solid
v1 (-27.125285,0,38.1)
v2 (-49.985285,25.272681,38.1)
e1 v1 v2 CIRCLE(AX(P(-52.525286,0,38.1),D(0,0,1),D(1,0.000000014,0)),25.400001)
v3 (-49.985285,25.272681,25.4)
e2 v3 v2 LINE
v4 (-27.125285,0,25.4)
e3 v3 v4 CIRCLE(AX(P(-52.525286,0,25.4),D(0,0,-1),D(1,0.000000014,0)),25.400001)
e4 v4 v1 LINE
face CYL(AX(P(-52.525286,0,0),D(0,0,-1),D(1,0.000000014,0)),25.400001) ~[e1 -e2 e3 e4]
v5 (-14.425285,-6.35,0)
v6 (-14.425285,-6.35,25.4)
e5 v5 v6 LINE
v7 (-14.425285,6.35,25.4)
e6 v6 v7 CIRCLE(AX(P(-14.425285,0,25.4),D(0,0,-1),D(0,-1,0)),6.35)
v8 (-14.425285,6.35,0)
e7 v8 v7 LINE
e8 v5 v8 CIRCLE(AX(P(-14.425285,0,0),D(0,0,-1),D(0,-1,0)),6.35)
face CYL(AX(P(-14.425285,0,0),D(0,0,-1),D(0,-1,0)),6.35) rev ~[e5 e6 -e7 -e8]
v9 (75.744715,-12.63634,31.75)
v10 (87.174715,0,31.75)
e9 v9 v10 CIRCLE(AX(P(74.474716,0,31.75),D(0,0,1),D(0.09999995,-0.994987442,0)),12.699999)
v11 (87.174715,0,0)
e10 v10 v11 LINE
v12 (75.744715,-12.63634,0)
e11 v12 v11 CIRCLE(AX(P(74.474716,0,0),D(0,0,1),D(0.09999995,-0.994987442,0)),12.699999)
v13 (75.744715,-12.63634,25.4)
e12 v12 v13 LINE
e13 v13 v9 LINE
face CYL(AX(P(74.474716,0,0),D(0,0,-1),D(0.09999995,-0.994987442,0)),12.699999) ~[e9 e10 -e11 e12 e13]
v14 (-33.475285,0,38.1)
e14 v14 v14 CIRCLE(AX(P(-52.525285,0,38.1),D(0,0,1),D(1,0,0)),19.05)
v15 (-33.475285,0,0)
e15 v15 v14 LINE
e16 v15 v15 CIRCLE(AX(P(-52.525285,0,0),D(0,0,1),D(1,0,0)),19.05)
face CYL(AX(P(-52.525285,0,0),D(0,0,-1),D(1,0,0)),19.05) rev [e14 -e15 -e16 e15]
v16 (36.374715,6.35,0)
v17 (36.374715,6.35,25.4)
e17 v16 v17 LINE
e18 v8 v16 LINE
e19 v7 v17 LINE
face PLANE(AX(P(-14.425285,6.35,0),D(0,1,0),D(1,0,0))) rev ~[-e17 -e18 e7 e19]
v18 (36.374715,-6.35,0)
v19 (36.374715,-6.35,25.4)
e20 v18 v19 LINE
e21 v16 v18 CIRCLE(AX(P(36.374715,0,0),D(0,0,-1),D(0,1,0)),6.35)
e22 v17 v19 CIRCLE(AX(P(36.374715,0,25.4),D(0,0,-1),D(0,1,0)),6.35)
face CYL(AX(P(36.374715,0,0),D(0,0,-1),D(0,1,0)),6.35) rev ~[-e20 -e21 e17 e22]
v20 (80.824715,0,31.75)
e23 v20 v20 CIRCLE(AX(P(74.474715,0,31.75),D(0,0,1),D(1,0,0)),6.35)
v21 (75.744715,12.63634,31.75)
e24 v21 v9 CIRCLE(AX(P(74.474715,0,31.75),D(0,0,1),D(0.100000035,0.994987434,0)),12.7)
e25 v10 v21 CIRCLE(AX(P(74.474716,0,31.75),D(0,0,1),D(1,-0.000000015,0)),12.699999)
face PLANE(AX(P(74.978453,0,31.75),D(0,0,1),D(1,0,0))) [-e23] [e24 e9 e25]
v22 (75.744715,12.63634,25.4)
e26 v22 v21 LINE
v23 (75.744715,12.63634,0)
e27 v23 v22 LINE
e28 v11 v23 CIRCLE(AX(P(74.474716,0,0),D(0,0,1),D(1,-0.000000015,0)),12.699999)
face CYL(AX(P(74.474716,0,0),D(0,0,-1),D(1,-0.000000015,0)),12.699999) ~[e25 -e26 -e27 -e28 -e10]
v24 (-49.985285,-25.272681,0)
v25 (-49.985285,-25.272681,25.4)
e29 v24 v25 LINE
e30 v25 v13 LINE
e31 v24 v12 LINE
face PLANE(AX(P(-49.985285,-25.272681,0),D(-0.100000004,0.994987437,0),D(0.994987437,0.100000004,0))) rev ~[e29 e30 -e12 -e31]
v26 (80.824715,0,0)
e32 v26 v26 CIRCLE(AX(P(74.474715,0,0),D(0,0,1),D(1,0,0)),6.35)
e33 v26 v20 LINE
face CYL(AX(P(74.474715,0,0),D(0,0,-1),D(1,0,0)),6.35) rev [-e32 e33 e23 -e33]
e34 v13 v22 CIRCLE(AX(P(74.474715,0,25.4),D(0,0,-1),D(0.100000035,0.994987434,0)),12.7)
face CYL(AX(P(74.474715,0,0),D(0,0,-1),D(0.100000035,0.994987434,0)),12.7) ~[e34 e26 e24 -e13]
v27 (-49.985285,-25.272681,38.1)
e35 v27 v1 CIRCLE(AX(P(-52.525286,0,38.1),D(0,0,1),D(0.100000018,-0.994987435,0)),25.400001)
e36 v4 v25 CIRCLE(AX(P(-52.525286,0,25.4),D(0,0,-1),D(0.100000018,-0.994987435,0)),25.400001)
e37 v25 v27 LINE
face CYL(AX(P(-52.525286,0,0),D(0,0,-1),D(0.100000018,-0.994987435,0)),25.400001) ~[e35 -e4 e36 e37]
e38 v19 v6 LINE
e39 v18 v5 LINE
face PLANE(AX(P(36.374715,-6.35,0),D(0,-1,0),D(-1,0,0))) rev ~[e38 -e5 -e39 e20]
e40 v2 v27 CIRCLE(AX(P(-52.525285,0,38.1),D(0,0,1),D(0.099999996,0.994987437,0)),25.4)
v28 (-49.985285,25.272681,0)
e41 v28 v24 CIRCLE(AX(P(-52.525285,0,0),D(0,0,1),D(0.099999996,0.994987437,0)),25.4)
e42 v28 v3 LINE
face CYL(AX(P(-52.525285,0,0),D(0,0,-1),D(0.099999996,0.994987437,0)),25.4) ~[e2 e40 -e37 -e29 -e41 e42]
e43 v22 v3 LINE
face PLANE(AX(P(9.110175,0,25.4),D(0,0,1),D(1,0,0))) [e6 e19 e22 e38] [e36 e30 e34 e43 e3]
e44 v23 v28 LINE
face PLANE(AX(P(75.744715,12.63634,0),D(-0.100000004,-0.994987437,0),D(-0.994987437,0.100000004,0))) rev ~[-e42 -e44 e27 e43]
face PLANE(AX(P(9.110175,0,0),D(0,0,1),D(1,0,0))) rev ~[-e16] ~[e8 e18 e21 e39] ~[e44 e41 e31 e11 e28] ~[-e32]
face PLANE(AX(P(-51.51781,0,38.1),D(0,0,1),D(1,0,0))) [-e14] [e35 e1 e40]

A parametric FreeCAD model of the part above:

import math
import FreeCAD as App
import Part
import Sketcher
Q = App.Units.Quantity

doc = App.newDocument("Part")
body = doc.addObject("PartDesign::Body", "Body")

# Sketch on XY plane
sketch1 = body.newObject("Sketcher::SketchObject", "Sketch")
sketch1.AttachmentSupport = (doc.getObject("XY_Plane"), [""])
sketch1.MapMode = "FlatFace"
sketch1.addGeometry([
    Part.LineSegment(App.Vector(76, 13, 0), App.Vector(-50, 25, 0)),  # 0
    Part.ArcOfCircle(Part.Circle(App.Vector(-53, 0, 0), App.Vector(0, 0, 1), 25), math.radians(84), math.radians(276)),  # 1
    Part.LineSegment(App.Vector(-50, -25, 0), App.Vector(76, -13, 0)),  # 2
    Part.ArcOfCircle(Part.Circle(App.Vector(74, 0, 0), App.Vector(0, 0, 1), 13), math.radians(-84), math.radians(0)),  # 3
    Part.ArcOfCircle(Part.Circle(App.Vector(74, 0, 0), App.Vector(0, 0, 1), 13), math.radians(0), math.radians(84)),  # 4
    Part.Circle(App.Vector(-53, 0, 0), App.Vector(0, 0, 1), 19),  # 5
    Part.LineSegment(App.Vector(36, -6, 0), App.Vector(-14, -6, 0)),  # 6
    Part.ArcOfCircle(Part.Circle(App.Vector(-14, 0, 0), App.Vector(0, 0, 1), 6), math.radians(90), math.radians(270)),  # 7
    Part.LineSegment(App.Vector(-14, 6, 0), App.Vector(36, 6, 0)),  # 8
    Part.ArcOfCircle(Part.Circle(App.Vector(36, 0, 0), App.Vector(0, 0, 1), 6), math.radians(-90), math.radians(90)),  # 9
    Part.Circle(App.Vector(74, 0, 0), App.Vector(0, 0, 1), 6),  # 10
], False)
sketch1.addConstraint([
    Sketcher.Constraint("Tangent", 0, 2, 1, 1),
    Sketcher.Constraint("Tangent", 1, 2, 2, 1),
    Sketcher.Constraint("Tangent", 2, 2, 3, 1),
    Sketcher.Constraint("Tangent", 3, 2, 4, 1),
    Sketcher.Constraint("Tangent", 4, 2, 0, 1),
    Sketcher.Constraint("Tangent", 6, 2, 7, 2),
    Sketcher.Constraint("Tangent", 7, 1, 8, 1),
    Sketcher.Constraint("Tangent", 8, 2, 9, 2),
    Sketcher.Constraint("Tangent", 9, 1, 6, 1),
    Sketcher.Constraint("Horizontal", 6),
    Sketcher.Constraint("Horizontal", 8),
    Sketcher.Constraint("Coincident", 5, 3, 1, 3),
    Sketcher.Constraint("Coincident", 10, 3, 3, 3),
    Sketcher.Constraint("Equal", 3, 4),
    Sketcher.Constraint("Equal", 9, 10),
    Sketcher.Constraint("Symmetric", 0, 2, 1, 2, -1),
    Sketcher.Constraint("PointOnObject", 7, 3, -1),
    Sketcher.Constraint("PointOnObject", 3, 2, -1),
    Sketcher.Constraint("Radius", 1, Q("1 in")),
    Sketcher.Constraint("Diameter", 5, Q("1.5 in")),
    Sketcher.Constraint("Diameter", 10, Q("0.5 in")),
    Sketcher.Constraint("Radius", 3, Q("0.5 in")),
    Sketcher.Constraint("DistanceX", 6, 2, 6, 1, Q("2 in")),
    Sketcher.Constraint("DistanceX", 1, 3, 3, 3, Q("5 in")),
    Sketcher.Constraint("DistanceX", 9, 3, 3, 2, Q("2 in")),
    Sketcher.Constraint("DistanceX", 1, 3, -1, 1, 52.525285),
])
pad1 = body.newObject("PartDesign::Pad", "Pad")
pad1.Profile = sketch1
pad1.Length = Q("1 in")

# Sketch on XY plane
sketch2 = body.newObject("Sketcher::SketchObject", "Sketch001")
sketch2.AttachmentSupport = (doc.getObject("XY_Plane"), [""])
sketch2.MapMode = "FlatFace"
sketch2.addGeometry([
    Part.ArcOfCircle(Part.Circle(App.Vector(-53, 0, 0), App.Vector(0, 0, 1), 25), math.radians(-84), math.radians(0)),
    Part.ArcOfCircle(Part.Circle(App.Vector(-53, 0, 0), App.Vector(0, 0, 1), 25), math.radians(0), math.radians(84)),
    Part.ArcOfCircle(Part.Circle(App.Vector(-53, 0, 0), App.Vector(0, 0, 1), 25), math.radians(84), math.radians(276)),
    Part.Circle(App.Vector(-53, 0, 0), App.Vector(0, 0, 1), 19),
], False)
sketch2.addConstraint([
    Sketcher.Constraint("Tangent", 0, 2, 1, 1),
    Sketcher.Constraint("Tangent", 1, 2, 2, 1),
    Sketcher.Constraint("Tangent", 2, 2, 0, 1),
    Sketcher.Constraint("Coincident", 3, 3, 0, 3),
    Sketcher.Constraint("Symmetric", 1, 2, 2, 2, -1),
    Sketcher.Constraint("PointOnObject", 0, 2, -1),
    Sketcher.Constraint("Radius", 0, Q("1 in")),
    Sketcher.Constraint("Diameter", 3, Q("1.5 in")),
    Sketcher.Constraint("DistanceX", 0, 3, 1, 2, Q("0.1 in")),
    Sketcher.Constraint("DistanceX", 0, 3, -1, 1, 52.525286),
])
pad2 = body.newObject("PartDesign::Pad", "Pad001")
pad2.Profile = sketch2
pad2.Length = Q("1.5 in")

# Sketch on XY plane
sketch3 = body.newObject("Sketcher::SketchObject", "Sketch002")
sketch3.AttachmentSupport = (doc.getObject("XY_Plane"), [""])
sketch3.MapMode = "FlatFace"
sketch3.addGeometry([
    Part.ArcOfCircle(Part.Circle(App.Vector(74, 0, 0), App.Vector(0, 0, 1), 13), math.radians(0), math.radians(84)),
    Part.ArcOfCircle(Part.Circle(App.Vector(74, 0, 0), App.Vector(0, 0, 1), 13), math.radians(84), math.radians(276)),
    Part.ArcOfCircle(Part.Circle(App.Vector(74, 0, 0), App.Vector(0, 0, 1), 13), math.radians(-84), math.radians(0)),
    Part.Circle(App.Vector(74, 0, 0), App.Vector(0, 0, 1), 6),
], False)
sketch3.addConstraint([
    Sketcher.Constraint("Tangent", 0, 2, 1, 1),
    Sketcher.Constraint("Tangent", 1, 2, 2, 1),
    Sketcher.Constraint("Tangent", 2, 2, 0, 1),
    Sketcher.Constraint("Coincident", 3, 3, 0, 3),
    Sketcher.Constraint("Symmetric", 0, 2, 1, 2, -1),
    Sketcher.Constraint("PointOnObject", 2, 2, -1),
    Sketcher.Constraint("Diameter", 3, Q("0.5 in")),
    Sketcher.Constraint("Radius", 0, Q("0.5 in")),
    Sketcher.Constraint("DistanceX", 0, 3, 0, 2, Q("0.05 in")),
    Sketcher.Constraint("DistanceX", -1, 1, 0, 3, 74.474716),
])
pad3 = body.newObject("PartDesign::Pad", "Pad002")
pad3.Profile = sketch3
pad3.Length = Q("1.25 in")

doc.recompute()
